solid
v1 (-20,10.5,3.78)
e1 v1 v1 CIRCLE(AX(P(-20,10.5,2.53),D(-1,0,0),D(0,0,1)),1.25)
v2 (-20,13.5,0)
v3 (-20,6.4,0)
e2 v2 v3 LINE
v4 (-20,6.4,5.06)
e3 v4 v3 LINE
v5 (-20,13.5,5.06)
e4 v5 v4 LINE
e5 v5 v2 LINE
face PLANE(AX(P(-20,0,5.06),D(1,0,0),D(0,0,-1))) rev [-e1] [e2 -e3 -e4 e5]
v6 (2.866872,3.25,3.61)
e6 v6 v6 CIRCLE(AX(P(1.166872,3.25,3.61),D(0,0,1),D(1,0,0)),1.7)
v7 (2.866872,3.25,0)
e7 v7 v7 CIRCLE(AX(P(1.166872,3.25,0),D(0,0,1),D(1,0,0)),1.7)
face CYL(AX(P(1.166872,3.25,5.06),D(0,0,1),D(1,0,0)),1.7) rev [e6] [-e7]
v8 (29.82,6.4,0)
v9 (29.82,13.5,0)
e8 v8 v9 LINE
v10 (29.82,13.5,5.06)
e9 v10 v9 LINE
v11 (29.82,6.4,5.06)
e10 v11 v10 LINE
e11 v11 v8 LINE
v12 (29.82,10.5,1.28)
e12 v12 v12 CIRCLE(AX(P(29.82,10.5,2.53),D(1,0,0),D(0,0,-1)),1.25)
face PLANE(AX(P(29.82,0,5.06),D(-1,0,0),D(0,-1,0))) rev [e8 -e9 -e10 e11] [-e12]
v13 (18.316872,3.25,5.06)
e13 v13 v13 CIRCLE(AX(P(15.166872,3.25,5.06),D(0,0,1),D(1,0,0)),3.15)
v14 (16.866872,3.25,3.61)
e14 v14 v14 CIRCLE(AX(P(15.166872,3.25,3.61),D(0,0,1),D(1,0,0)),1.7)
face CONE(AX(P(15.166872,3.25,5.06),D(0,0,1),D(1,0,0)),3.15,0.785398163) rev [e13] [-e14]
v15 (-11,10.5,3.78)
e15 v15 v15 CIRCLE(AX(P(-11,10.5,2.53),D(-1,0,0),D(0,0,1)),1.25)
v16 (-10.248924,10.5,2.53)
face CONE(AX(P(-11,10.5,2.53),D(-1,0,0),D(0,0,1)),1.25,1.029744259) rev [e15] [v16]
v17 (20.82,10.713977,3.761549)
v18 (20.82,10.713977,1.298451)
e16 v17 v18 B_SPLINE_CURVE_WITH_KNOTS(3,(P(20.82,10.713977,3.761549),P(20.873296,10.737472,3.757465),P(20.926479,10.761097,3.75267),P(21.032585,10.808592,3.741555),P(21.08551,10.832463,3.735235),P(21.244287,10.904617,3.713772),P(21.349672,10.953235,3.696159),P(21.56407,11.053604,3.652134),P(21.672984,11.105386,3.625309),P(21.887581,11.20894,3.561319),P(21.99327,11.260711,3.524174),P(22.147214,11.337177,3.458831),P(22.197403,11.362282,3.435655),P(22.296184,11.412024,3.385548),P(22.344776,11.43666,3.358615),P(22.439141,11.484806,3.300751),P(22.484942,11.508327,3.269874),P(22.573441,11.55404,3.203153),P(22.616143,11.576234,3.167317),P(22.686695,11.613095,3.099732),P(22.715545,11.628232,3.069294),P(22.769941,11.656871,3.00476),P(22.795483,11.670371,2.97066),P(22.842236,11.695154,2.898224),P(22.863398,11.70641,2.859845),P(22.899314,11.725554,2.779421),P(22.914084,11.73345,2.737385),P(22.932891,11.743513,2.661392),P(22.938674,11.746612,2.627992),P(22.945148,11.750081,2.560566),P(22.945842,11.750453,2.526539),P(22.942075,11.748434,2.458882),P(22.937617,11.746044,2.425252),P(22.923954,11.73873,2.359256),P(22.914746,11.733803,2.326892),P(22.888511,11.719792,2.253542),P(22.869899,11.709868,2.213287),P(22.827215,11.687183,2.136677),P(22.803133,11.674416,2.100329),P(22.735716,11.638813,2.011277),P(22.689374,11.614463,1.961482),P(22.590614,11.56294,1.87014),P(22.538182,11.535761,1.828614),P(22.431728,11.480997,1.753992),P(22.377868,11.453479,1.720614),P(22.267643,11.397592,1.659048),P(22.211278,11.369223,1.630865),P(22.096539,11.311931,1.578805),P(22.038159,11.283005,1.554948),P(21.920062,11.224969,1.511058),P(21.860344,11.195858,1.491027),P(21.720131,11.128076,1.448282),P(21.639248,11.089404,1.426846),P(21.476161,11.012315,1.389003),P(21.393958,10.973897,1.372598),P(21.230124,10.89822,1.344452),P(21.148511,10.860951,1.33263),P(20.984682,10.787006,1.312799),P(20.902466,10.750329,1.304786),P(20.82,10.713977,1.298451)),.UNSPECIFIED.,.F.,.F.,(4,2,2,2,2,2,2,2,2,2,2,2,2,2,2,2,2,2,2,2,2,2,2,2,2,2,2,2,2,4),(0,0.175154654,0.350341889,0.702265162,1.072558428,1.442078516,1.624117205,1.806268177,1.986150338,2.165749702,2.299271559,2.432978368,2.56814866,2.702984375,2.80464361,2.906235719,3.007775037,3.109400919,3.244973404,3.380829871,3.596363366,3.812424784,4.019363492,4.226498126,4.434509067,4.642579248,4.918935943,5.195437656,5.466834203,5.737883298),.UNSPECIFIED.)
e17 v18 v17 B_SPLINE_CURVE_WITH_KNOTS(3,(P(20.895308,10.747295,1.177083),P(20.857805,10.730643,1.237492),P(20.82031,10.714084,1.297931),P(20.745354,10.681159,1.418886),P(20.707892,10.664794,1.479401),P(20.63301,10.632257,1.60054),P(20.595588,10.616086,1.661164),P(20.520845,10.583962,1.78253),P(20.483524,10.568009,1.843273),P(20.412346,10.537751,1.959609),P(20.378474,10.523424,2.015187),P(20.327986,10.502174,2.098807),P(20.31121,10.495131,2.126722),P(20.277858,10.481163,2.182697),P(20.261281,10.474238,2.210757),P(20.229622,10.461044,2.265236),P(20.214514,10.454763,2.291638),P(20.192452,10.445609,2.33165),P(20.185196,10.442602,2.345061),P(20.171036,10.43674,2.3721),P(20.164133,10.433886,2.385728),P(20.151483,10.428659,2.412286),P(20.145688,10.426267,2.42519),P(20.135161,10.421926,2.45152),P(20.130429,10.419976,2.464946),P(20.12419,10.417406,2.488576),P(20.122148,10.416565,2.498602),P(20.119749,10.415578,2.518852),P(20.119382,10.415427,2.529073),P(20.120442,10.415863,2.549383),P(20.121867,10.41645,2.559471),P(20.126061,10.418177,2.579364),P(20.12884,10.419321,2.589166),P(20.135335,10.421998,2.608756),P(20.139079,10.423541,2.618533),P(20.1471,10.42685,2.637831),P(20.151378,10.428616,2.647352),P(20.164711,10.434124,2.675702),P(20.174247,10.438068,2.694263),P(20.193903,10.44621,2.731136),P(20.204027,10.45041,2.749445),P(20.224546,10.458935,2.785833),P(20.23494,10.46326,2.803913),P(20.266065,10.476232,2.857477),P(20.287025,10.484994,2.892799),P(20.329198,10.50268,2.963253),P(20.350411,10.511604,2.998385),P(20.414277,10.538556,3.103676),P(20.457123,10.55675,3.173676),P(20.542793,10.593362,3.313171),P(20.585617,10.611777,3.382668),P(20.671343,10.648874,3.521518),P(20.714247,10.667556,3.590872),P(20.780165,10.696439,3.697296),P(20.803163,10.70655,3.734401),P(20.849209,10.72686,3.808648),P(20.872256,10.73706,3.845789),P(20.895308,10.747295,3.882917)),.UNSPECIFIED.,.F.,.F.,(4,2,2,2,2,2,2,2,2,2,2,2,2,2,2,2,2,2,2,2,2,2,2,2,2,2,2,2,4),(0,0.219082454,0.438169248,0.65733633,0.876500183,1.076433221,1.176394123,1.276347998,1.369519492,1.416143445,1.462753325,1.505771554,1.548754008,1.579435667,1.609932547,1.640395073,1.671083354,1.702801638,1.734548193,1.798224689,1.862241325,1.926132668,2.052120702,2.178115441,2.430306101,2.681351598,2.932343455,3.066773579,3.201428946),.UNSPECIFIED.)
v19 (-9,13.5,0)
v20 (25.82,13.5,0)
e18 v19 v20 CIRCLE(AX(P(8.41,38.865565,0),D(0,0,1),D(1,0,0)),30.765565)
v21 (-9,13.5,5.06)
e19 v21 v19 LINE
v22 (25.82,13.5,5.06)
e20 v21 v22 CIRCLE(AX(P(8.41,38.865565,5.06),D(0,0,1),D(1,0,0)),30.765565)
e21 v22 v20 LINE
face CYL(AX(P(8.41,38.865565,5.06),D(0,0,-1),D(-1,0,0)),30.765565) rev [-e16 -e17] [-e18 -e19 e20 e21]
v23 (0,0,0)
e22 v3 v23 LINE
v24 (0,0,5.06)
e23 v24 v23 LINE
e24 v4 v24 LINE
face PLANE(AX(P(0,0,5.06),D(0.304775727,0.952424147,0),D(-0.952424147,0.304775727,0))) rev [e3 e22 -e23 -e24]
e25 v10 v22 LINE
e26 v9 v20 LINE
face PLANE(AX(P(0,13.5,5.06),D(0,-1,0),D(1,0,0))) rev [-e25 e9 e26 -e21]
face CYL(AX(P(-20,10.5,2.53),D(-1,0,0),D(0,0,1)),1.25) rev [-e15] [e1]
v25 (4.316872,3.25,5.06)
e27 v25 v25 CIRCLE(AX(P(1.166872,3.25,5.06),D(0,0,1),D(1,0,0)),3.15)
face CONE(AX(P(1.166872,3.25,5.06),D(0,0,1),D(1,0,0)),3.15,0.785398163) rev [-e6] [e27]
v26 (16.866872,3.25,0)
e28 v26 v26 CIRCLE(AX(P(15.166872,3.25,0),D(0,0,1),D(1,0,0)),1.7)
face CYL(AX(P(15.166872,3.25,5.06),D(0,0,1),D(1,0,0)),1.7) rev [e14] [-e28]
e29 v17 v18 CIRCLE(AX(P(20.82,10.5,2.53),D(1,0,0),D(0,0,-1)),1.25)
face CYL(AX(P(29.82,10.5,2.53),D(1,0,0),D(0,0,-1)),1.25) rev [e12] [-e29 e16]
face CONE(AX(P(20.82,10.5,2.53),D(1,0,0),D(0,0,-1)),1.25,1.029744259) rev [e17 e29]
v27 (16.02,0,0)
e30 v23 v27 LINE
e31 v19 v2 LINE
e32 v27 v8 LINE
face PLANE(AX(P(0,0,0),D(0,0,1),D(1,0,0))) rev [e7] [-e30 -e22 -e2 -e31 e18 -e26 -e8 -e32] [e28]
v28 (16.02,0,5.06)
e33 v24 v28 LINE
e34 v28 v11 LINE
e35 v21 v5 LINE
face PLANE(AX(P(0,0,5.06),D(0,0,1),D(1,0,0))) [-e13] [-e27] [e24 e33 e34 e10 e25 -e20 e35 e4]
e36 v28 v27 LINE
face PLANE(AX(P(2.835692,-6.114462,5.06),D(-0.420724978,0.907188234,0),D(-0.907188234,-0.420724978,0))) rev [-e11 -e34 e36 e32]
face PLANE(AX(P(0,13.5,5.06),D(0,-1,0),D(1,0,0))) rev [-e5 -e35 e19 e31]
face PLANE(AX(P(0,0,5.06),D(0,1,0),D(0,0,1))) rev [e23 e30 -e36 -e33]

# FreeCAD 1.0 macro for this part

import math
import FreeCAD as App
import Part
import Sketcher
from FreeCAD import Vector
Q = App.Units.Quantity


def add_polygon(sketch, points):
    """Adds a closed chain of lines whose ends are joined by coincident constraints."""
    first, n = sketch.GeometryCount, len(points)
    for a, b in zip(points, points[1:] + points[:1]):
        sketch.addGeometry(Part.LineSegment(App.Vector(*a, 0), App.Vector(*b, 0)), False)
    for i in range(n):
        sketch.addConstraint(Sketcher.Constraint("Coincident", first + i, 2, first + (i + 1) % n, 1))

doc = App.newDocument("Part")
body = doc.addObject("PartDesign::Body", "Body")

sketch1 = doc.addObject("Sketcher::SketchObject", "Sketch")
body.addObject(sketch1)
sketch1.AttachmentSupport = (doc.XY_Plane, [""])
sketch1.MapMode = "FlatFace"
sketch1.addGeometry(Part.LineSegment(Vector(-20, 6.4, 0), Vector(0, 0, 0)), False)
sketch1.addGeometry(Part.LineSegment(Vector(0, 0, 0), Vector(16, 0, 0)), False)
sketch1.addGeometry(Part.LineSegment(Vector(16, 0, 0), Vector(29.8, 6.4, 0)), False)
sketch1.addGeometry(Part.LineSegment(Vector(29.8, 6.4, 0), Vector(29.8, 13.5, 0)), False)
sketch1.addGeometry(Part.LineSegment(Vector(29.8, 13.5, 0), Vector(25.8, 13.5, 0)), False)
sketch1.addGeometry(Part.ArcOfCircle(Part.Circle(Vector(8.4, 38.9, 0), Vector(0, 0, 1), 30.8), math.radians(-124), math.radians(-56)), False)
sketch1.addGeometry(Part.LineSegment(Vector(-9, 13.5, 0), Vector(-20, 13.5, 0)), False)
sketch1.addGeometry(Part.LineSegment(Vector(-20, 13.5, 0), Vector(-20, 6.4, 0)), False)
sketch1.addConstraint(Sketcher.Constraint("Coincident", 0, 2, 1, 1))
sketch1.addConstraint(Sketcher.Constraint("Coincident", 1, 2, 2, 1))
sketch1.addConstraint(Sketcher.Constraint("Coincident", 2, 2, 3, 1))
sketch1.addConstraint(Sketcher.Constraint("Coincident", 3, 2, 4, 1))
sketch1.addConstraint(Sketcher.Constraint("Coincident", 4, 2, 5, 2))
sketch1.addConstraint(Sketcher.Constraint("Coincident", 5, 1, 6, 1))
sketch1.addConstraint(Sketcher.Constraint("Coincident", 6, 2, 7, 1))
sketch1.addConstraint(Sketcher.Constraint("Coincident", 7, 2, 0, 1))
sketch1.addConstraint(Sketcher.Constraint("Horizontal", 1))
sketch1.addConstraint(Sketcher.Constraint("Vertical", 3))
sketch1.addConstraint(Sketcher.Constraint("Horizontal", 4))
sketch1.addConstraint(Sketcher.Constraint("Horizontal", 6))
sketch1.addConstraint(Sketcher.Constraint("Vertical", 7))
sketch1.addConstraint(Sketcher.Constraint("Coincident", 0, 2, -1, 1))
sketch1.addConstraint(Sketcher.Constraint("Horizontal", 4, 2, 5, 1))
sketch1.addConstraint(Sketcher.Constraint("Horizontal", 2, 2, 7, 2))
sketch1.addConstraint(Sketcher.Constraint("DistanceX", 4, 2, 4, 1, Q("4 mm")))
sketch1.addConstraint(Sketcher.Constraint("DistanceX", 6, 2, 6, 1, Q("11 mm")))
sketch1.addConstraint(Sketcher.Constraint("DistanceY", 3, 1, 3, 2, Q("7.1 mm")))
sketch1.addConstraint(Sketcher.Constraint("DistanceX", 5, 1, -1, 1, Q("9 mm")))
sketch1.addConstraint(Sketcher.Constraint("DistanceX", 1, 1, 1, 2, Q("16.02 mm")))
sketch1.addConstraint(Sketcher.Constraint("DistanceY", -1, 1, 2, 2, Q("6.4 mm")))
sketch1.addConstraint(Sketcher.Constraint("DistanceX", 1, 2, 2, 2, Q("13.8 mm")))
sketch1.addConstraint(Sketcher.Constraint("Radius", 5, Q("30.765565 mm")))
pad1 = doc.addObject("PartDesign::Pad", "Pad")
body.addObject(pad1)
pad1.Profile = sketch1
pad1.Length = 5.06

sketch2 = doc.addObject("Sketcher::SketchObject", "Sketch001")
body.addObject(sketch2)
sketch2.AttachmentSupport = (doc.XZ_Plane, [""])
sketch2.MapMode = "FlatFace"
sketch2.AttachmentOffset = App.Placement(Vector(0, 0, -10.5), App.Rotation())
add_polygon(sketch2, [(-10.2, 2.5), (-20, 2.5), (-20, 3.8), (-11, 3.8)])
sketch2.addGeometry(Part.LineSegment(Vector(-20, 2.5, 0), Vector(-10.2, 2.5, 0)), True)
sketch2.addConstraint(Sketcher.Constraint("Horizontal", 0))
sketch2.addConstraint(Sketcher.Constraint("Vertical", 1))
sketch2.addConstraint(Sketcher.Constraint("Horizontal", 2))
sketch2.addConstraint(Sketcher.Constraint("Horizontal", 4))
sketch2.addConstraint(Sketcher.Constraint("Coincident", 4, 1, 0, 2))
sketch2.addConstraint(Sketcher.Constraint("Equal", 0, 4))
sketch2.addConstraint(Sketcher.Constraint("DistanceX", 2, 1, 2, 2, Q("9 mm")))
sketch2.addConstraint(Sketcher.Constraint("Angle", 3, Q("-59 deg")))
sketch2.addConstraint(Sketcher.Constraint("DistanceX", 0, 2, -1, 1, Q("20 mm")))
sketch2.addConstraint(Sketcher.Constraint("DistanceY", 1, 1, 1, 2, Q("1.25 mm")))
sketch2.addConstraint(Sketcher.Constraint("DistanceY", -1, 1, 0, 2, Q("2.53 mm")))
groove = doc.addObject("PartDesign::Groove", "Groove")
body.addObject(groove)
groove.Profile = sketch2
groove.ReferenceAxis = (sketch2, ["Axis0"])
groove.Angle = 360
doc.recompute()

datumplane = doc.addObject("PartDesign::Plane", "DatumPlane")
body.addObject(datumplane)
datumplane.AttachmentSupport = (doc.YZ_Plane, [""])
datumplane.MapMode = "FlatFace"
datumplane.AttachmentOffset = App.Placement(Vector(0, 0, 4.91), App.Rotation())
mirrored = doc.addObject("PartDesign::Mirrored", "Mirrored")
body.addObject(mirrored)
mirrored.Originals = [groove]
mirrored.MirrorPlane = (datumplane, [""])
body.Tip = mirrored

sketch3 = doc.addObject("Sketcher::SketchObject", "Sketch002")
body.addObject(sketch3)
sketch3.AttachmentSupport = (doc.XY_Plane, [""])
sketch3.MapMode = "FlatFace"
sketch3.AttachmentOffset = App.Placement(Vector(0, 0, 5.06), App.Rotation())
sketch3.addGeometry(Part.Circle(Vector(1.2, 3.2, 0), Vector(0, 0, 1), 1.7), False)
sketch3.addGeometry(Part.Circle(Vector(15.2, 3.2, 0), Vector(0, 0, 1), 1.7), False)
sketch3.addConstraint(Sketcher.Constraint("Equal", 0, 1))
sketch3.addConstraint(Sketcher.Constraint("Horizontal", 0, 3, 1, 3))
sketch3.addConstraint(Sketcher.Constraint("Diameter", 0, Q("3.4 mm")))
sketch3.addConstraint(Sketcher.Constraint("DistanceX", 0, 3, 1, 3, Q("14 mm")))
sketch3.addConstraint(Sketcher.Constraint("DistanceY", -1, 1, 0, 3, Q("3.25 mm")))
sketch3.addConstraint(Sketcher.Constraint("DistanceX", -1, 1, 0, 3, Q("1.166872 mm")))
doc.recompute()
hole = doc.addObject("PartDesign::Hole", "Hole")
body.addObject(hole)
hole.Profile = sketch3
hole.ThreadType = "None"
hole.Diameter = 3.4
hole.DepthType = "ThroughAll"
hole.HoleCutType = "Countersink"
hole.HoleCutDiameter = 6.3
hole.HoleCutCountersinkAngle = 90

doc.recompute()
